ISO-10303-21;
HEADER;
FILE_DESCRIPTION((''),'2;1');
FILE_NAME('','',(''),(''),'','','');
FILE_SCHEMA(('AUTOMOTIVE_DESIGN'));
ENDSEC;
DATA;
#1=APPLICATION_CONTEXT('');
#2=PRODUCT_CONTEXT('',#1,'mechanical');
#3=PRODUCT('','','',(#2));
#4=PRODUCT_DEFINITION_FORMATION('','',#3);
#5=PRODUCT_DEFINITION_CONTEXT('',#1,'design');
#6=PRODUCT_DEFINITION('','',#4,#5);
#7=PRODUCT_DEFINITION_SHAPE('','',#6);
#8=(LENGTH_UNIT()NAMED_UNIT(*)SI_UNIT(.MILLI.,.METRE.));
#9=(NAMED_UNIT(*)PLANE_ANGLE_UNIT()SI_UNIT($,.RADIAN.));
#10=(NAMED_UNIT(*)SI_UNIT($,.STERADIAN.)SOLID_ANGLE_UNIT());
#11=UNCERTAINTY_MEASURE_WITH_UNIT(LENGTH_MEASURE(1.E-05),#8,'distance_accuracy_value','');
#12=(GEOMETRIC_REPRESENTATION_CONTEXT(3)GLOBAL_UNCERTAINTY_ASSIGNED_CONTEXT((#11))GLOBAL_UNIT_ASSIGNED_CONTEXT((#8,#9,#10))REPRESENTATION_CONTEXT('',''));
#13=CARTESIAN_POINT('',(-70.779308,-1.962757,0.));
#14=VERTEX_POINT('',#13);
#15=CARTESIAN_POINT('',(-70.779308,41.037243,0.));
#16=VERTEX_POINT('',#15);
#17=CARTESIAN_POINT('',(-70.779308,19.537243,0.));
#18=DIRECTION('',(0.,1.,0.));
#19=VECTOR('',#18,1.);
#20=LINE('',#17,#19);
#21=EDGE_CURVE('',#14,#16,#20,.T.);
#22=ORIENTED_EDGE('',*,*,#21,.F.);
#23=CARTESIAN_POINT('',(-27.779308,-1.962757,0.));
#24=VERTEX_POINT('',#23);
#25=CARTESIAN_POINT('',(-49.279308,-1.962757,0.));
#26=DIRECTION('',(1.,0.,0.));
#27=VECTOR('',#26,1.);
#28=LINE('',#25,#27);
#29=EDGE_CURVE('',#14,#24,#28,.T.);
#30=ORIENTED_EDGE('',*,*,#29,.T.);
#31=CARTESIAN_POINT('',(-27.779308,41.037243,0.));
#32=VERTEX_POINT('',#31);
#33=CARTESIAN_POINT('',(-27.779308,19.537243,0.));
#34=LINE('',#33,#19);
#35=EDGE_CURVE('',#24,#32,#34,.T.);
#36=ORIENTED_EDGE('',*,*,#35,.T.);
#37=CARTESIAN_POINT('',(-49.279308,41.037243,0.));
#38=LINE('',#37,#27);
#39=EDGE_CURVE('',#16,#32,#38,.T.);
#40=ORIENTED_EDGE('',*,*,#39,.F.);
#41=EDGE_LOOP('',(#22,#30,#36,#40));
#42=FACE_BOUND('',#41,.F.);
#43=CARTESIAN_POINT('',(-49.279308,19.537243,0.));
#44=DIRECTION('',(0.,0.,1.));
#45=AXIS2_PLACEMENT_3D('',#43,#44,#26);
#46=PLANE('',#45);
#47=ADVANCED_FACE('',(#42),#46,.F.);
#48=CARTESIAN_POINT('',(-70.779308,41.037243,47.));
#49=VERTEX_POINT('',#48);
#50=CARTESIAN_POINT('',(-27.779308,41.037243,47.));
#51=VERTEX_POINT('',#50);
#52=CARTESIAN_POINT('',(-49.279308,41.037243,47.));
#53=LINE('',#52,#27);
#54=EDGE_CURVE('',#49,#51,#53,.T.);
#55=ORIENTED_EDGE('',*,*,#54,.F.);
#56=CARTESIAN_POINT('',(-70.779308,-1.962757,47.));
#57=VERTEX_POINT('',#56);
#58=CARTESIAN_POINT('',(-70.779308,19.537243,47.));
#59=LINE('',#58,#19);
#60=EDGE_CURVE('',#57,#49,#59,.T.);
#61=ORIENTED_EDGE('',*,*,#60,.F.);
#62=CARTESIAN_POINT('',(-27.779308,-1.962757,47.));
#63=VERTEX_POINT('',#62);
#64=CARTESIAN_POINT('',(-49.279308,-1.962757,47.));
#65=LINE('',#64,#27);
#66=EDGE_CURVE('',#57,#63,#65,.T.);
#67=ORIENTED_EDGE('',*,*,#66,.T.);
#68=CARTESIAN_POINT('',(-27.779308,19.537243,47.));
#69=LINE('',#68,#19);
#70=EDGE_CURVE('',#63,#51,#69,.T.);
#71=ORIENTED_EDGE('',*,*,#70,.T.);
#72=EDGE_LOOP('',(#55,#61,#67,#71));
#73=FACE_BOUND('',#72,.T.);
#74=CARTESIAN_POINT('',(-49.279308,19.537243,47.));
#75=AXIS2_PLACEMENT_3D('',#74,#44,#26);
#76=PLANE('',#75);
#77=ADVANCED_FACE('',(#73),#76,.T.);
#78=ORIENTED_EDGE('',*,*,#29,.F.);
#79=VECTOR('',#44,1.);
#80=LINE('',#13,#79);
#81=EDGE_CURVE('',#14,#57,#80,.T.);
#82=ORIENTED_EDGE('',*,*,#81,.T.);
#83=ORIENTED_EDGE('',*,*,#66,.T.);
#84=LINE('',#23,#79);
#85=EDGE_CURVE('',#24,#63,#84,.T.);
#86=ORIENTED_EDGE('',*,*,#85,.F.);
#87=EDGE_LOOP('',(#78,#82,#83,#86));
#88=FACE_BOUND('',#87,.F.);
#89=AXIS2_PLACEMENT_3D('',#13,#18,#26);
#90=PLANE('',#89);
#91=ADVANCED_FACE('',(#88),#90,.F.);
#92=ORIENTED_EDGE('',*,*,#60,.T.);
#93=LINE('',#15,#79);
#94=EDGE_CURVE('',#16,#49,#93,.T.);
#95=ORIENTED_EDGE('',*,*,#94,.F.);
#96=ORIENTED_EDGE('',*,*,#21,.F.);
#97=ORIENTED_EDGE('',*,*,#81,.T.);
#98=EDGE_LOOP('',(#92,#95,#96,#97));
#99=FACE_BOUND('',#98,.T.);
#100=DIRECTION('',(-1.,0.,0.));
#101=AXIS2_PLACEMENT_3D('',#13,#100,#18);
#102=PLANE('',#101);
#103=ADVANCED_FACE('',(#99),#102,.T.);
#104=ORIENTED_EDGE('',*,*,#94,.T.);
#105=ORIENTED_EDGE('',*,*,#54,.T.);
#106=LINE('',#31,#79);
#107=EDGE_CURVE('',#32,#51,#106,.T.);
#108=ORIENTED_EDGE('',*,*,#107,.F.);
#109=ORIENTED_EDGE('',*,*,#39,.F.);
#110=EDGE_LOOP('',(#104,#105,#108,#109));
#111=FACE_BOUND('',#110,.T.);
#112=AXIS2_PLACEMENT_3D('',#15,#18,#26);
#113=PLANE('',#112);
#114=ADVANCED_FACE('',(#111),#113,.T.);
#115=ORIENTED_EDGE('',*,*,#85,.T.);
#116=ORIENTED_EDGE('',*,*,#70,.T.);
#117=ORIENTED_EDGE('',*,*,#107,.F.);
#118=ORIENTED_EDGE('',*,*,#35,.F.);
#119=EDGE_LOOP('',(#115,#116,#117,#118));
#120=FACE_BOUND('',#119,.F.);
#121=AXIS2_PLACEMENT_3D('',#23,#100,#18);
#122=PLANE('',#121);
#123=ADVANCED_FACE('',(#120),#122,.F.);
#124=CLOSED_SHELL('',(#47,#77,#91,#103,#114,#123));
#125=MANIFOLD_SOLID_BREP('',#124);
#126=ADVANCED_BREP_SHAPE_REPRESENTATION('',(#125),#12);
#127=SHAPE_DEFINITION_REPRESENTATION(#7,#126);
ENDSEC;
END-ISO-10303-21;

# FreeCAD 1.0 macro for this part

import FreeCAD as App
import Part
import Sketcher
from FreeCAD import Vector


def add_polygon(sketch, points):
    """Adds a closed chain of lines whose ends are joined by coincident constraints."""
    first, n = sketch.GeometryCount, len(points)
    for a, b in zip(points, points[1:] + points[:1]):
        sketch.addGeometry(Part.LineSegment(App.Vector(*a, 0), App.Vector(*b, 0)), False)
    for i in range(n):
        sketch.addConstraint(Sketcher.Constraint("Coincident", first + i, 2, first + (i + 1) % n, 1))

doc = App.newDocument("Part")
body = doc.addObject("PartDesign::Body", "Body")

# Sketch on XY plane
sketch1 = body.newObject("Sketcher::SketchObject", "Sketch")
sketch1.AttachmentSupport = (doc.getObject("XY_Plane"), [""])
sketch1.MapMode = "FlatFace"
add_polygon(sketch1, [(-71, 41), (-71, -2), (-28, -2), (-28, 41)])  # lines 0-3
sketch1.addConstraint(Sketcher.Constraint("Vertical", 0))
sketch1.addConstraint(Sketcher.Constraint("Horizontal", 1))
sketch1.addConstraint(Sketcher.Constraint("Vertical", 2))
sketch1.addConstraint(Sketcher.Constraint("Horizontal", 3))
sketch1.addConstraint(Sketcher.Constraint("Equal", 3, 0))
sketch1.addConstraint(Sketcher.Constraint("DistanceX", 1, 1, 1, 2, 43.0))
sketch1.addConstraint(Sketcher.Constraint("DistanceX", 0, 2, -1, 1, 70.779308))
sketch1.addConstraint(Sketcher.Constraint("DistanceY", 0, 2, -1, 1, 1.962757))
pad1 = body.newObject("PartDesign::Pad", "Pad")
pad1.Profile = sketch1
pad1.Length = 47

doc.recompute()
